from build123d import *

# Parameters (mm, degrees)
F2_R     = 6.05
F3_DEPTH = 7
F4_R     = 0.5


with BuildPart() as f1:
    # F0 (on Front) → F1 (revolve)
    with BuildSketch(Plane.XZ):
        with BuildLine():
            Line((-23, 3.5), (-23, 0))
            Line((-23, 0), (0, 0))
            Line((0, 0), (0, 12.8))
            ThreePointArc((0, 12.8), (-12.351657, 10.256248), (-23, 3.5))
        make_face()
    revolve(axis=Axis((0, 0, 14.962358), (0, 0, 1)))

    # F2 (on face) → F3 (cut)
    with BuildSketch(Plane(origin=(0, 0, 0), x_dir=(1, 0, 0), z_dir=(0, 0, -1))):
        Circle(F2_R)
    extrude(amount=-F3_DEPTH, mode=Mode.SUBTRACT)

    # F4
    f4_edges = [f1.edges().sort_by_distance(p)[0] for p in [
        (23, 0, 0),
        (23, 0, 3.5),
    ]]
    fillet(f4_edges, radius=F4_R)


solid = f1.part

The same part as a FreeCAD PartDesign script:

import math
import FreeCAD as App
import Part
import Sketcher
from FreeCAD import Vector
Q = App.Units.Quantity


def edges_at(feature, points):
    """Names of the edges that pass closest to the given points."""
    edges = feature.Shape.Edges
    near = lambda p: min(range(len(edges)), key=lambda i: edges[i].distToShape(Part.Vertex(*p))[0])
    return sorted({f"Edge{near(p) + 1}" for p in points})

doc = App.newDocument("Part")
params = doc.addObject("Spreadsheet::Sheet", "Params")
for row, (alias, value) in enumerate([
    ("sketch1_width", "23 mm"),
    ("sketch1_height", "3.5 mm"),
    ("sketch1_height2", "12.8 mm"),
    ("revolution_angle", "360 deg"),
    ("sketch2_diameter", "12.1 mm"),
    ("pocket1_length", "7 mm"),
    ("fillet_radius", "0.5 mm"),
], start=1):
    params.set(f"A{row}", alias)
    params.set(f"B{row}", "=" + value)
    params.setAlias(f"B{row}", alias)

body = doc.addObject("PartDesign::Body", "Body")

# Sketch on XZ plane
sketch1 = body.newObject("Sketcher::SketchObject", "Sketch")
sketch1.AttachmentSupport = (doc.getObject("XZ_Plane"), [""])
sketch1.MapMode = "FlatFace"
sketch1.addGeometry([
    Part.LineSegment(Vector(-23, 3.5, 0), Vector(-23, 0, 0)),
    Part.LineSegment(Vector(-23, 0, 0), Vector(0, 0, 0)),
    Part.LineSegment(Vector(0, 0, 0), Vector(0, 12.8, 0)),
    Part.ArcOfCircle(Part.Circle(Vector(0.8, -22.2, 0), Vector(0, 0, 1), 35), math.radians(91), math.radians(133)),
], False)
sketch1.addConstraint([
    Sketcher.Constraint("Coincident", 0, 2, 1, 1),
    Sketcher.Constraint("Coincident", 1, 2, 2, 1),
    Sketcher.Constraint("Coincident", 2, 2, 3, 1),
    Sketcher.Constraint("Coincident", 3, 2, 0, 1),
    Sketcher.Constraint("Vertical", 0),
    Sketcher.Constraint("Horizontal", 1),
    Sketcher.Constraint("Vertical", 2),
    Sketcher.Constraint("Coincident", 1, 2, -1, 1),
    Sketcher.Constraint("DistanceX", 1, 1, 1, 2, Q("23 mm")),
    Sketcher.Constraint("DistanceY", 0, 2, 0, 1, Q("3.5 mm")),
    Sketcher.Constraint("DistanceY", 2, 1, 2, 2, Q("12.8 mm")),
    Sketcher.Constraint("Radius", 3, Q("35.000003 mm")),
])
sketch1.setExpression("Constraints[8]", "Params.sketch1_width")
sketch1.setExpression("Constraints[9]", "Params.sketch1_height")
sketch1.setExpression("Constraints[10]", "Params.sketch1_height2")
revolution = body.newObject("PartDesign::Revolution", "Revolution")
revolution.Profile = sketch1
revolution.ReferenceAxis = (sketch1, ["V_Axis"])
revolution.setExpression("Angle", "Params.revolution_angle")

# Sketch on XY plane
sketch2 = body.newObject("Sketcher::SketchObject", "Sketch001")
sketch2.AttachmentSupport = (doc.getObject("XY_Plane"), [""])
sketch2.MapMode = "FlatFace"
sketch2.addGeometry(Part.Circle(Vector(0, 0, 0), Vector(0, 0, 1), 6), False)
sketch2.addConstraint([
    Sketcher.Constraint("Coincident", 0, 3, -1, 1),
    Sketcher.Constraint("Diameter", 0, Q("12.1 mm")),
])
sketch2.setExpression("Constraints[1]", "Params.sketch2_diameter")
pocket1 = body.newObject("PartDesign::Pocket", "Pocket")
pocket1.Profile = sketch2
pocket1.setExpression("Length", "Params.pocket1_length")
pocket1.Reversed = True
doc.recompute()

fillet = body.newObject("PartDesign::Fillet", "Fillet")
fillet.Base = (pocket1, edges_at(pocket1, [(23, 0, 0), (23, 0, 3.5)]))
fillet.setExpression("Radius", "Params.fillet_radius")

doc.recompute()
